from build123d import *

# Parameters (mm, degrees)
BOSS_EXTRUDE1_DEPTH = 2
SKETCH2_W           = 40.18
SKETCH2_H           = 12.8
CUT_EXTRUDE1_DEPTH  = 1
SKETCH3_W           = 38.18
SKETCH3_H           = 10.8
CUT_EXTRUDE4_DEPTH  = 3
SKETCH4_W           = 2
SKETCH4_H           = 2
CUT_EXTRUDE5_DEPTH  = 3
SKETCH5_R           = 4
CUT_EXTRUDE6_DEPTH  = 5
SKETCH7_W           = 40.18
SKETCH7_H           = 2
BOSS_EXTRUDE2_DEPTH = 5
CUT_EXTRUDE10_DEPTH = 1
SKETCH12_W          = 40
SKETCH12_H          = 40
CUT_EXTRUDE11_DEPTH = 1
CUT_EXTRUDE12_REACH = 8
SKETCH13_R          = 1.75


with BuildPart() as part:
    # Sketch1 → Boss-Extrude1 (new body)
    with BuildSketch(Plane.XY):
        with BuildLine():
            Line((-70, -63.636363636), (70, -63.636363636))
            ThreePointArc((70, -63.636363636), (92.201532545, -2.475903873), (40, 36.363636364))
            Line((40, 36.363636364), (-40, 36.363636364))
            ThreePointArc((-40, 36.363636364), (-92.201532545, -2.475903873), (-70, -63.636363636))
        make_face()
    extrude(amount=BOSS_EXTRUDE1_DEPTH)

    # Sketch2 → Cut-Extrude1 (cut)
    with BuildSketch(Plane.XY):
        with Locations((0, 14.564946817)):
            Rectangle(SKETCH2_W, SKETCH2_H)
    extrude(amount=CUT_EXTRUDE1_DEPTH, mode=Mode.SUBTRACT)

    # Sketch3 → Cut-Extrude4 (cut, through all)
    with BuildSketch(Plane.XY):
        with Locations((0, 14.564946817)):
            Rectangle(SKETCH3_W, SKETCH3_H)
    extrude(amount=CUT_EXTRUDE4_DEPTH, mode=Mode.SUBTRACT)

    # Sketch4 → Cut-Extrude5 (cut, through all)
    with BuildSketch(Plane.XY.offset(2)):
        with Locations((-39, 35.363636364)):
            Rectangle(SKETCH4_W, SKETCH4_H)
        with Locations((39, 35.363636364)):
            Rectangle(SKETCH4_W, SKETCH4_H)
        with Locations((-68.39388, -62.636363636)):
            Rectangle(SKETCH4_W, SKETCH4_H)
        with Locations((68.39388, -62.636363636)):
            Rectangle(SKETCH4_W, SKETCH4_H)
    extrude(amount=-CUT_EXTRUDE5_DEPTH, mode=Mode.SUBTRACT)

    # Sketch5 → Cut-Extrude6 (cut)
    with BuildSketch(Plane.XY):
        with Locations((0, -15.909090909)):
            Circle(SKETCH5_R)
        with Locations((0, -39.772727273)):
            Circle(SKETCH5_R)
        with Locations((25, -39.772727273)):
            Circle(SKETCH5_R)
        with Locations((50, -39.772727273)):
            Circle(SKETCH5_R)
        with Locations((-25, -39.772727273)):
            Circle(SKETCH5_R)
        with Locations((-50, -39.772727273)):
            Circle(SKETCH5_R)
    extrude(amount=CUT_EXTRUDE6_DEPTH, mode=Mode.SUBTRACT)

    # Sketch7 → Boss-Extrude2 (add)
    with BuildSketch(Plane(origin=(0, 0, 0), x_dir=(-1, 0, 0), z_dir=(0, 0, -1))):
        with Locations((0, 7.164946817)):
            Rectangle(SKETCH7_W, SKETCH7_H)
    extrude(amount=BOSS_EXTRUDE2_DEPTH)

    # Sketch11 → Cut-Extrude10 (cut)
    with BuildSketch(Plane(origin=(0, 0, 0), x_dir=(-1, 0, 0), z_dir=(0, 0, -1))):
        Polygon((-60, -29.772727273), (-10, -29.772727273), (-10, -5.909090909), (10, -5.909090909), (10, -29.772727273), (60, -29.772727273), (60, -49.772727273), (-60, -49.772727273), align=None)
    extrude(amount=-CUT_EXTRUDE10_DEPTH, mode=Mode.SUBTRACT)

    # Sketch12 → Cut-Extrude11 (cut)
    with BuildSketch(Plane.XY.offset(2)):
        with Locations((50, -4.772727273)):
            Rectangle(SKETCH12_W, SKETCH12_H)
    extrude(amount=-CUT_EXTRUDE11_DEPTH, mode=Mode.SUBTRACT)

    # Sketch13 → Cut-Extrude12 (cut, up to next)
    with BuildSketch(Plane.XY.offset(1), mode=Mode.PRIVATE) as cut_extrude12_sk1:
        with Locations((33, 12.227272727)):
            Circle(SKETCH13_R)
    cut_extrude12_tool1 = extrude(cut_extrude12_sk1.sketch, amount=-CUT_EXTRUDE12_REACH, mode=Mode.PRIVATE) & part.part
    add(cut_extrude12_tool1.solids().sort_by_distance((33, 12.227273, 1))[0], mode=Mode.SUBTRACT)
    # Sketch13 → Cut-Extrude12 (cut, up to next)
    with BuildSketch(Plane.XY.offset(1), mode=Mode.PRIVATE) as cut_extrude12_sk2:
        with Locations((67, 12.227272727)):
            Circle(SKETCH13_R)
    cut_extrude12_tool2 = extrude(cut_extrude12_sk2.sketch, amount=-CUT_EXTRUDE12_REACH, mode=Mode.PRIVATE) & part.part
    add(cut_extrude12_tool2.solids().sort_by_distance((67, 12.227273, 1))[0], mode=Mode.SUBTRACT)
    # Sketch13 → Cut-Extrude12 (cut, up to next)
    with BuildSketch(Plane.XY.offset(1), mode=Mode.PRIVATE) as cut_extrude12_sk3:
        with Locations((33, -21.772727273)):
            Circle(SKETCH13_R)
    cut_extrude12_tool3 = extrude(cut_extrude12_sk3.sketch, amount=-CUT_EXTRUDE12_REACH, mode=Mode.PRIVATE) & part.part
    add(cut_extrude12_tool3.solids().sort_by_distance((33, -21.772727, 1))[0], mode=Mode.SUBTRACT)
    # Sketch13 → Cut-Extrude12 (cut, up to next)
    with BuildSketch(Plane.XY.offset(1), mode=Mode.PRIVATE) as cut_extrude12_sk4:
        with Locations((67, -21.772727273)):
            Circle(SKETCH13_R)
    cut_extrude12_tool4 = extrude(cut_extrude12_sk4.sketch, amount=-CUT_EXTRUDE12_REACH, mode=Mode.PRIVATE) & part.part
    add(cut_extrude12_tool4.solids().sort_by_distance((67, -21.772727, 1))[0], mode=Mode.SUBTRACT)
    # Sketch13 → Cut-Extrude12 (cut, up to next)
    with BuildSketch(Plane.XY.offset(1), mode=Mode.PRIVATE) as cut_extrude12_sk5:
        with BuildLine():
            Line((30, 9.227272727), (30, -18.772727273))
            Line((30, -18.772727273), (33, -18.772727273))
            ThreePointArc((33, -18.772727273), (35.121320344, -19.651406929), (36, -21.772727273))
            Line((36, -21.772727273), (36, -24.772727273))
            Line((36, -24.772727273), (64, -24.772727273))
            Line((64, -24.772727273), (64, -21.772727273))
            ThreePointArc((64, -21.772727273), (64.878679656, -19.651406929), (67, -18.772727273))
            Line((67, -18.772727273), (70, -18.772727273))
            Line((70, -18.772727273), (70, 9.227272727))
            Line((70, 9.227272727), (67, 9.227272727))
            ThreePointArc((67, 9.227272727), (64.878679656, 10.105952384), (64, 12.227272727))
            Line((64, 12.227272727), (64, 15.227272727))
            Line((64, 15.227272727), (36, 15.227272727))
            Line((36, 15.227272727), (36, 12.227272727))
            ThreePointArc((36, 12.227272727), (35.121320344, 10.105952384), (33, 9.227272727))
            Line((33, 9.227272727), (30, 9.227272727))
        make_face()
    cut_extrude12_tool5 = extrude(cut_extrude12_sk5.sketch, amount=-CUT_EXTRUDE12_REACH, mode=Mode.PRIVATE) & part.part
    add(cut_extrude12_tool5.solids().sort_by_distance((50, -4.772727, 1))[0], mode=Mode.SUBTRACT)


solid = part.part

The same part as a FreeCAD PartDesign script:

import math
import FreeCAD as App
import Part
import Sketcher


def add_polygon(sketch, points):
    """Adds a closed chain of lines whose ends are joined by coincident constraints."""
    first, n = sketch.GeometryCount, len(points)
    for a, b in zip(points, points[1:] + points[:1]):
        sketch.addGeometry(Part.LineSegment(App.Vector(*a, 0), App.Vector(*b, 0)), False)
    for i in range(n):
        sketch.addConstraint(Sketcher.Constraint("Coincident", first + i, 2, first + (i + 1) % n, 1))

doc = App.newDocument("Part")
body = doc.addObject("PartDesign::Body", "Body")

# Sketch on XY plane
sketch1 = body.newObject("Sketcher::SketchObject", "Sketch")
sketch1.AttachmentSupport = (doc.getObject("XY_Plane"), [""])
sketch1.MapMode = "FlatFace"
sketch1.addGeometry([
    Part.LineSegment(App.Vector(-70, -64, 0), App.Vector(70, -64, 0)),
    Part.ArcOfCircle(Part.Circle(App.Vector(40, -18, 0), App.Vector(0, 0, 1), 54), math.radians(-57), math.radians(90)),
    Part.LineSegment(App.Vector(40, 36, 0), App.Vector(-40, 36, 0)),
    Part.ArcOfCircle(Part.Circle(App.Vector(-40, -18, 0), App.Vector(0, 0, 1), 54), math.radians(90), math.radians(237)),
], False)
sketch1.addConstraint([
    Sketcher.Constraint("Coincident", 0, 2, 1, 1),
    Sketcher.Constraint("Tangent", 1, 2, 2, 1),
    Sketcher.Constraint("Tangent", 2, 2, 3, 1),
    Sketcher.Constraint("Coincident", 3, 2, 0, 1),
    Sketcher.Constraint("Horizontal", 0),
    Sketcher.Constraint("Horizontal", 2),
    Sketcher.Constraint("Equal", 1, 3),
    Sketcher.Constraint("Radius", 1, 54.5),
    Sketcher.Constraint("DistanceX", 0, 1, 0, 2, 140.0),
    Sketcher.Constraint("DistanceX", 2, 2, 2, 1, 80.0),
    Sketcher.Constraint("DistanceX", -1, 1, 1, 3, 40.0),
    Sketcher.Constraint("DistanceY", 1, 3, -1, 1, 18.136364),
])
pad1 = body.newObject("PartDesign::Pad", "Pad")
pad1.Profile = sketch1
pad1.Length = 2

# Sketch on XY plane
sketch2 = body.newObject("Sketcher::SketchObject", "Sketch001")
sketch2.AttachmentSupport = (doc.getObject("XY_Plane"), [""])
sketch2.MapMode = "FlatFace"
add_polygon(sketch2, [(-20, 21), (-20, 8), (20, 8), (20, 21)])  # lines 0-3
sketch2.addConstraint([
    Sketcher.Constraint("Vertical", 0),
    Sketcher.Constraint("Horizontal", 1),
    Sketcher.Constraint("Vertical", 2),
    Sketcher.Constraint("Horizontal", 3),
    Sketcher.Constraint("DistanceY", 0, 2, 0, 1, 12.8),
    Sketcher.Constraint("DistanceX", 1, 1, 1, 2, 40.18),
    Sketcher.Constraint("DistanceX", 0, 2, -1, 1, 20.09),
    Sketcher.Constraint("DistanceY", -1, 1, 0, 2, 8.164947),
])
pocket1 = body.newObject("PartDesign::Pocket", "Pocket")
pocket1.Profile = sketch2
pocket1.Length = 1
pocket1.Reversed = True

# Sketch on XY plane
sketch3 = body.newObject("Sketcher::SketchObject", "Sketch002")
sketch3.AttachmentSupport = (doc.getObject("XY_Plane"), [""])
sketch3.MapMode = "FlatFace"
add_polygon(sketch3, [(-19, 20), (-19, 9), (19, 9), (19, 20)])  # lines 0-3
sketch3.addConstraint([
    Sketcher.Constraint("Vertical", 0),
    Sketcher.Constraint("Horizontal", 1),
    Sketcher.Constraint("Vertical", 2),
    Sketcher.Constraint("Horizontal", 3),
    Sketcher.Constraint("DistanceY", 0, 2, 0, 1, 10.8),
    Sketcher.Constraint("DistanceX", 1, 1, 1, 2, 38.18),
    Sketcher.Constraint("DistanceX", 0, 2, -1, 1, 19.09),
    Sketcher.Constraint("DistanceY", -1, 1, 0, 2, 9.164947),
])
pocket2 = body.newObject("PartDesign::Pocket", "Pocket001")
pocket2.Profile = sketch3
pocket2.Type = "ThroughAll"
pocket2.Reversed = True

# Sketch on XY plane
sketch4 = body.newObject("Sketcher::SketchObject", "Sketch003")
sketch4.AttachmentSupport = (doc.getObject("XY_Plane"), [""])
sketch4.MapMode = "FlatFace"
sketch4.AttachmentOffset = App.Placement(App.Vector(0, 0, 2), App.Rotation())
add_polygon(sketch4, [(-40, 36.4), (-40, 34.4), (-38, 34.4), (-38, 36.4)])  # lines 0-3
add_polygon(sketch4, [(38, 36.4), (38, 34.4), (40, 34.4), (40, 36.4)])  # lines 4-7
add_polygon(sketch4, [(-69.4, -61.6), (-69.4, -63.6), (-67.4, -63.6), (-67.4, -61.6)])  # lines 8-11
add_polygon(sketch4, [(67.4, -61.6), (67.4, -63.6), (69.4, -63.6), (69.4, -61.6)])  # lines 12-15
sketch4.addConstraint([
    Sketcher.Constraint("Vertical", 0),
    Sketcher.Constraint("Horizontal", 1),
    Sketcher.Constraint("Vertical", 2),
    Sketcher.Constraint("Horizontal", 3),
    Sketcher.Constraint("Vertical", 4),
    Sketcher.Constraint("Horizontal", 5),
    Sketcher.Constraint("Vertical", 6),
    Sketcher.Constraint("Horizontal", 7),
    Sketcher.Constraint("Vertical", 8),
    Sketcher.Constraint("Horizontal", 9),
    Sketcher.Constraint("Vertical", 10),
    Sketcher.Constraint("Horizontal", 11),
    Sketcher.Constraint("Vertical", 12),
    Sketcher.Constraint("Horizontal", 13),
    Sketcher.Constraint("Vertical", 14),
    Sketcher.Constraint("Horizontal", 15),
    Sketcher.Constraint("Symmetric", 1, 2, 4, 2, -2),
    Sketcher.Constraint("Symmetric", 3, 2, 6, 2, -2),
    Sketcher.Constraint("Symmetric", 9, 2, 12, 2, -2),
    Sketcher.Constraint("Symmetric", 11, 2, 14, 2, -2),
    Sketcher.Constraint("Equal", 7, 9),
    Sketcher.Constraint("Equal", 15, 0),
    Sketcher.Constraint("Equal", 6, 8),
    Sketcher.Constraint("DistanceX", 1, 1, 1, 2, 2.0),
    Sketcher.Constraint("DistanceX", 0, 2, -1, 1, 40.0),
    Sketcher.Constraint("DistanceY", 8, 2, 0, 2, 98.0),
    Sketcher.Constraint("DistanceX", 8, 2, -1, 1, 69.39388),
    Sketcher.Constraint("DistanceY", -1, 1, 0, 2, 34.363636),
])
pocket3 = body.newObject("PartDesign::Pocket", "Pocket002")
pocket3.Profile = sketch4
pocket3.Type = "ThroughAll"

# Sketch on XY plane
sketch5 = body.newObject("Sketcher::SketchObject", "Sketch004")
sketch5.AttachmentSupport = (doc.getObject("XY_Plane"), [""])
sketch5.MapMode = "FlatFace"
sketch5.addGeometry([
    Part.Circle(App.Vector(0, -15.9, 0), App.Vector(0, 0, 1), 4),  # 0
    Part.Circle(App.Vector(0, -39.8, 0), App.Vector(0, 0, 1), 4),  # 1
    Part.Circle(App.Vector(25, -39.8, 0), App.Vector(0, 0, 1), 4),  # 2
    Part.Circle(App.Vector(50, -39.8, 0), App.Vector(0, 0, 1), 4),  # 3
    Part.Circle(App.Vector(-25, -39.8, 0), App.Vector(0, 0, 1), 4),  # 4
    Part.Circle(App.Vector(-50, -39.8, 0), App.Vector(0, 0, 1), 4),  # 5
], False)
sketch5.addConstraint([
    Sketcher.Constraint("Equal", 0, 1),
    Sketcher.Constraint("Equal", 1, 2),
    Sketcher.Constraint("Equal", 2, 3),
    Sketcher.Constraint("Equal", 3, 4),
    Sketcher.Constraint("Equal", 4, 5),
    Sketcher.Constraint("Symmetric", 2, 3, 4, 3, -2),
    Sketcher.Constraint("Symmetric", 3, 3, 5, 3, -2),
    Sketcher.Constraint("PointOnObject", 0, 3, -2),
    Sketcher.Constraint("PointOnObject", 1, 3, -2),
    Sketcher.Constraint("Horizontal", 1, 3, 2, 3),
    Sketcher.Constraint("Horizontal", 2, 3, 3, 3),
    Sketcher.Constraint("Diameter", 0, 8.0),
    Sketcher.Constraint("DistanceX", -1, 1, 2, 3, 25.0),
    Sketcher.Constraint("DistanceX", -1, 1, 3, 3, 50.0),
    Sketcher.Constraint("DistanceY", 0, 3, -1, 1, 15.909091),
    Sketcher.Constraint("DistanceY", 1, 3, -1, 1, 39.772727),
])
pocket4 = body.newObject("PartDesign::Pocket", "Pocket003")
pocket4.Profile = sketch5
pocket4.Length = 5
pocket4.Reversed = True

# Sketch on XY plane
sketch6 = body.newObject("Sketcher::SketchObject", "Sketch005")
sketch6.AttachmentSupport = (doc.getObject("XY_Plane"), [""])
sketch6.MapMode = "FlatFace"
add_polygon(sketch6, [(20.1, 8.2), (20.1, 6.2), (-20.1, 6.2), (-20.1, 8.2)])  # lines 0-3
sketch6.addConstraint([
    Sketcher.Constraint("Vertical", 0),
    Sketcher.Constraint("Horizontal", 1),
    Sketcher.Constraint("Vertical", 2),
    Sketcher.Constraint("Horizontal", 3),
    Sketcher.Constraint("DistanceY", 0, 2, 0, 1, 2.0),
    Sketcher.Constraint("DistanceX", 1, 2, 1, 1, 40.18),
    Sketcher.Constraint("DistanceX", -1, 1, 0, 2, 20.09),
    Sketcher.Constraint("DistanceY", -1, 1, 0, 2, 6.164947),
])
pad2 = body.newObject("PartDesign::Pad", "Pad001")
pad2.Profile = sketch6
pad2.Length = 5
pad2.Reversed = True

# Sketch on XY plane
sketch7 = body.newObject("Sketcher::SketchObject", "Sketch006")
sketch7.AttachmentSupport = (doc.getObject("XY_Plane"), [""])
sketch7.MapMode = "FlatFace"
add_polygon(sketch7, [(10, -30), (60, -30), (60, -50), (-60, -50), (-60, -30), (-10, -30), (-10, -6), (10, -6)])  # lines 0-7
sketch7.addConstraint([
    Sketcher.Constraint("Horizontal", 0),
    Sketcher.Constraint("Vertical", 1),
    Sketcher.Constraint("Horizontal", 2),
    Sketcher.Constraint("Vertical", 3),
    Sketcher.Constraint("Horizontal", 4),
    Sketcher.Constraint("Vertical", 5),
    Sketcher.Constraint("Horizontal", 6),
    Sketcher.Constraint("Vertical", 7),
    Sketcher.Constraint("Symmetric", 0, 2, 3, 2, -2),
    Sketcher.Constraint("Equal", 0, 4),
    Sketcher.Constraint("Equal", 6, 1),
    Sketcher.Constraint("DistanceX", 0, 1, 0, 2, 50.0),
    Sketcher.Constraint("DistanceX", 2, 2, 2, 1, 120.0),
    Sketcher.Constraint("DistanceY", 5, 1, 5, 2, 23.863636),
    Sketcher.Constraint("DistanceY", 5, 2, -1, 1, 5.909091),
])
pocket5 = body.newObject("PartDesign::Pocket", "Pocket004")
pocket5.Profile = sketch7
pocket5.Length = 1
pocket5.Reversed = True

# Sketch on XY plane
sketch8 = body.newObject("Sketcher::SketchObject", "Sketch007")
sketch8.AttachmentSupport = (doc.getObject("XY_Plane"), [""])
sketch8.MapMode = "FlatFace"
sketch8.AttachmentOffset = App.Placement(App.Vector(0, 0, 2), App.Rotation())
add_polygon(sketch8, [(30, 15), (30, -25), (70, -25), (70, 15)])  # lines 0-3
sketch8.addConstraint([
    Sketcher.Constraint("Vertical", 0),
    Sketcher.Constraint("Horizontal", 1),
    Sketcher.Constraint("Vertical", 2),
    Sketcher.Constraint("Horizontal", 3),
    Sketcher.Constraint("Equal", 3, 0),
    Sketcher.Constraint("DistanceX", 1, 1, 1, 2, 40.0),
    Sketcher.Constraint("DistanceX", -1, 1, 0, 2, 30.0),
    Sketcher.Constraint("DistanceY", 0, 2, -1, 1, 24.772727),
])
pocket6 = body.newObject("PartDesign::Pocket", "Pocket005")
pocket6.Profile = sketch8
pocket6.Length = 1

# Sketch on XY plane
sketch9 = body.newObject("Sketcher::SketchObject", "Sketch008")
sketch9.AttachmentSupport = (doc.getObject("XY_Plane"), [""])
sketch9.MapMode = "FlatFace"
sketch9.AttachmentOffset = App.Placement(App.Vector(0, 0, 1), App.Rotation())
sketch9.addGeometry(Part.Circle(App.Vector(33, 12.2, 0), App.Vector(0, 0, 1), 1.8), False)
sketch9.addConstraint([
    Sketcher.Constraint("Diameter", 0, 3.5),
    Sketcher.Constraint("DistanceX", -1, 1, 0, 3, 33.0),
    Sketcher.Constraint("DistanceY", -1, 1, 0, 3, 12.227273),
])
pocket7 = body.newObject("PartDesign::Pocket", "Pocket006")
pocket7.Profile = sketch9
pocket7.Type = "UpToFirst"

# Sketch on XY plane
sketch10 = body.newObject("Sketcher::SketchObject", "Sketch009")
sketch10.AttachmentSupport = (doc.getObject("XY_Plane"), [""])
sketch10.MapMode = "FlatFace"
sketch10.AttachmentOffset = App.Placement(App.Vector(0, 0, 1), App.Rotation())
sketch10.addGeometry(Part.Circle(App.Vector(67, 12.2, 0), App.Vector(0, 0, 1), 1.8), False)
sketch10.addConstraint([
    Sketcher.Constraint("Diameter", 0, 3.5),
    Sketcher.Constraint("DistanceX", -1, 1, 0, 3, 67.0),
    Sketcher.Constraint("DistanceY", -1, 1, 0, 3, 12.227273),
])
pocket8 = body.newObject("PartDesign::Pocket", "Pocket007")
pocket8.Profile = sketch10
pocket8.Type = "UpToFirst"

# Sketch on XY plane
sketch11 = body.newObject("Sketcher::SketchObject", "Sketch010")
sketch11.AttachmentSupport = (doc.getObject("XY_Plane"), [""])
sketch11.MapMode = "FlatFace"
sketch11.AttachmentOffset = App.Placement(App.Vector(0, 0, 1), App.Rotation())
sketch11.addGeometry(Part.Circle(App.Vector(33, -21.8, 0), App.Vector(0, 0, 1), 1.8), False)
sketch11.addConstraint([
    Sketcher.Constraint("Diameter", 0, 3.5),
    Sketcher.Constraint("DistanceX", -1, 1, 0, 3, 33.0),
    Sketcher.Constraint("DistanceY", 0, 3, -1, 1, 21.772727),
])
pocket9 = body.newObject("PartDesign::Pocket", "Pocket008")
pocket9.Profile = sketch11
pocket9.Type = "UpToFirst"

# Sketch on XY plane
sketch12 = body.newObject("Sketcher::SketchObject", "Sketch011")
sketch12.AttachmentSupport = (doc.getObject("XY_Plane"), [""])
sketch12.MapMode = "FlatFace"
sketch12.AttachmentOffset = App.Placement(App.Vector(0, 0, 1), App.Rotation())
sketch12.addGeometry(Part.Circle(App.Vector(67, -21.8, 0), App.Vector(0, 0, 1), 1.8), False)
sketch12.addConstraint([
    Sketcher.Constraint("Diameter", 0, 3.5),
    Sketcher.Constraint("DistanceX", -1, 1, 0, 3, 67.0),
    Sketcher.Constraint("DistanceY", 0, 3, -1, 1, 21.772727),
])
pocket10 = body.newObject("PartDesign::Pocket", "Pocket009")
pocket10.Profile = sketch12
pocket10.Type = "UpToFirst"

# Sketch on XY plane
sketch13 = body.newObject("Sketcher::SketchObject", "Sketch012")
sketch13.AttachmentSupport = (doc.getObject("XY_Plane"), [""])
sketch13.MapMode = "FlatFace"
sketch13.AttachmentOffset = App.Placement(App.Vector(0, 0, 1), App.Rotation())
sketch13.addGeometry([
    Part.LineSegment(App.Vector(30, 9.2, 0), App.Vector(30, -18.8, 0)),  # 0
    Part.LineSegment(App.Vector(30, -18.8, 0), App.Vector(33, -18.8, 0)),  # 1
    Part.ArcOfCircle(Part.Circle(App.Vector(33, -21.8, 0), App.Vector(0, 0, 1), 3), math.radians(0), math.radians(90)),  # 2
    Part.LineSegment(App.Vector(36, -21.8, 0), App.Vector(36, -24.8, 0)),  # 3
    Part.LineSegment(App.Vector(36, -24.8, 0), App.Vector(64, -24.8, 0)),  # 4
    Part.LineSegment(App.Vector(64, -24.8, 0), App.Vector(64, -21.8, 0)),  # 5
    Part.ArcOfCircle(Part.Circle(App.Vector(67, -21.8, 0), App.Vector(0, 0, 1), 3), math.radians(90), math.radians(180)),  # 6
    Part.LineSegment(App.Vector(67, -18.8, 0), App.Vector(70, -18.8, 0)),  # 7
    Part.LineSegment(App.Vector(70, -18.8, 0), App.Vector(70, 9.2, 0)),  # 8
    Part.LineSegment(App.Vector(70, 9.2, 0), App.Vector(67, 9.2, 0)),  # 9
    Part.ArcOfCircle(Part.Circle(App.Vector(67, 12.2, 0), App.Vector(0, 0, 1), 3), math.radians(180), math.radians(270)),  # 10
    Part.LineSegment(App.Vector(64, 12.2, 0), App.Vector(64, 15.2, 0)),  # 11
    Part.LineSegment(App.Vector(64, 15.2, 0), App.Vector(36, 15.2, 0)),  # 12
    Part.LineSegment(App.Vector(36, 15.2, 0), App.Vector(36, 12.2, 0)),  # 13
    Part.ArcOfCircle(Part.Circle(App.Vector(33, 12.2, 0), App.Vector(0, 0, 1), 3), math.radians(-90), math.radians(0)),  # 14
    Part.LineSegment(App.Vector(33, 9.2, 0), App.Vector(30, 9.2, 0)),  # 15
], False)
sketch13.addConstraint([
    Sketcher.Constraint("Coincident", 0, 2, 1, 1),
    Sketcher.Constraint("Tangent", 1, 2, 2, 2),
    Sketcher.Constraint("Tangent", 2, 1, 3, 1),
    Sketcher.Constraint("Coincident", 3, 2, 4, 1),
    Sketcher.Constraint("Coincident", 4, 2, 5, 1),
    Sketcher.Constraint("Tangent", 5, 2, 6, 2),
    Sketcher.Constraint("Tangent", 6, 1, 7, 1),
    Sketcher.Constraint("Coincident", 7, 2, 8, 1),
    Sketcher.Constraint("Coincident", 8, 2, 9, 1),
    Sketcher.Constraint("Tangent", 9, 2, 10, 2),
    Sketcher.Constraint("Tangent", 10, 1, 11, 1),
    Sketcher.Constraint("Coincident", 11, 2, 12, 1),
    Sketcher.Constraint("Coincident", 12, 2, 13, 1),
    Sketcher.Constraint("Tangent", 13, 2, 14, 2),
    Sketcher.Constraint("Tangent", 14, 1, 15, 1),
    Sketcher.Constraint("Coincident", 15, 2, 0, 1),
    Sketcher.Constraint("Vertical", 0),
    Sketcher.Constraint("Horizontal", 1),
    Sketcher.Constraint("Vertical", 3),
    Sketcher.Constraint("Horizontal", 4),
    Sketcher.Constraint("Vertical", 5),
    Sketcher.Constraint("Horizontal", 7),
    Sketcher.Constraint("Vertical", 8),
    Sketcher.Constraint("Horizontal", 9),
    Sketcher.Constraint("Vertical", 11),
    Sketcher.Constraint("Horizontal", 12),
    Sketcher.Constraint("Vertical", 13),
    Sketcher.Constraint("Horizontal", 15),
    Sketcher.Constraint("Equal", 2, 6),
    Sketcher.Constraint("Equal", 6, 10),
    Sketcher.Constraint("Equal", 10, 14),
    Sketcher.Constraint("Horizontal", 2, 3, 6, 3),
    Sketcher.Constraint("Horizontal", 10, 3, 14, 3),
    Sketcher.Constraint("Vertical", 6, 3, 10, 3),
    Sketcher.Constraint("Vertical", 2, 3, 14, 3),
    Sketcher.Constraint("Equal", 1, 7),
    Sketcher.Constraint("Equal", 12, 0),
    Sketcher.Constraint("Equal", 15, 3),
    Sketcher.Constraint("Equal", 5, 11),
    Sketcher.Constraint("Radius", 2, 3.0),
    Sketcher.Constraint("DistanceX", 1, 1, 1, 2, 3.0),
    Sketcher.Constraint("DistanceX", 4, 1, 4, 2, 28.0),
    Sketcher.Constraint("DistanceX", -1, 1, 2, 3, 33.0),
    Sketcher.Constraint("DistanceY", 2, 3, -1, 1, 21.772727),
])
pocket11 = body.newObject("PartDesign::Pocket", "Pocket010")
pocket11.Profile = sketch13
pocket11.Type = "UpToFirst"

doc.recompute()
